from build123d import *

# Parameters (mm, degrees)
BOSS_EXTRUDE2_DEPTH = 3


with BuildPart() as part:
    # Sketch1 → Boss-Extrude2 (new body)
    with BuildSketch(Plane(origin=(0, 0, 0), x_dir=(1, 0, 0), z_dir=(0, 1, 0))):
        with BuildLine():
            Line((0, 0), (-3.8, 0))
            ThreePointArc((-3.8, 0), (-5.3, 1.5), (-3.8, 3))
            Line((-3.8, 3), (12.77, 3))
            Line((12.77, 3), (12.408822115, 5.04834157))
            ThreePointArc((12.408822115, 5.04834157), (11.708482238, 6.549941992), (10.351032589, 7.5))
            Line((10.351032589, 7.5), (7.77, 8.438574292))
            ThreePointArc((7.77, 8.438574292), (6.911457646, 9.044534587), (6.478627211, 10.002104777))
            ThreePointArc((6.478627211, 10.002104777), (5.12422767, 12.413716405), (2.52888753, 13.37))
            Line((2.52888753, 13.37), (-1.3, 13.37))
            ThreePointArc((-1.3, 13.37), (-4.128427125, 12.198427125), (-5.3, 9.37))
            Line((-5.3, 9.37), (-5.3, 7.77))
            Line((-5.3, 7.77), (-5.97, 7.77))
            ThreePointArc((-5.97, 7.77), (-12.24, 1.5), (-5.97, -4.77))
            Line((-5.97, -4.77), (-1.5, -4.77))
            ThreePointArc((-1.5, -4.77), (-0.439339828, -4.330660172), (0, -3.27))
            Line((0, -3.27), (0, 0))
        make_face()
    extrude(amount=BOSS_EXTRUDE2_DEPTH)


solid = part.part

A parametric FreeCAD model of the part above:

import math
import FreeCAD as App
import Part
import Sketcher

V = App.Vector
Q = App.Units.Quantity

doc = App.newDocument("Part")
body = doc.addObject("PartDesign::Body", "Body")

# Sketch on XZ plane
sketch1 = body.newObject("Sketcher::SketchObject", "Sketch")
sketch1.AttachmentSupport = (doc.getObject("XZ_Plane"), [""])
sketch1.MapMode = "FlatFace"
sketch1.addGeometry(Part.LineSegment(V(0, 0, 0), V(-3.8, 0, 0)), False)
sketch1.addGeometry(Part.ArcOfCircle(Part.Circle(V(-3.8, -1.5, 0), V(0, 0, 1), 1.5), math.radians(90), math.radians(270)), False)
sketch1.addGeometry(Part.LineSegment(V(-3.8, -3, 0), V(12.8, -3, 0)), False)
sketch1.addGeometry(Part.LineSegment(V(12.8, -3, 0), V(12.4, -5, 0)), False)
sketch1.addGeometry(Part.ArcOfCircle(Part.Circle(V(9.3, -4.5, 0), V(0, 0, 1), 3.2), math.radians(-70), math.radians(-10)), False)
sketch1.addGeometry(Part.LineSegment(V(10.4, -7.5, 0), V(7.8, -8.4, 0)), False)
sketch1.addGeometry(Part.ArcOfCircle(Part.Circle(V(8.5, -10.3, 0), V(0, 0, 1), 2), math.radians(110), math.radians(171)), False)
sketch1.addGeometry(Part.ArcOfCircle(Part.Circle(V(2.5, -9.4, 0), V(0, 0, 1), 4), math.radians(-90), math.radians(-9)), False)
sketch1.addGeometry(Part.LineSegment(V(2.5, -13.4, 0), V(-1.3, -13.4, 0)), False)
sketch1.addGeometry(Part.ArcOfCircle(Part.Circle(V(-1.3, -9.4, 0), V(0, 0, 1), 4), math.radians(180), math.radians(270)), False)
sketch1.addGeometry(Part.LineSegment(V(-5.3, -9.4, 0), V(-5.3, -7.8, 0)), False)
sketch1.addGeometry(Part.LineSegment(V(-5.3, -7.8, 0), V(-6, -7.8, 0)), False)
sketch1.addGeometry(Part.ArcOfCircle(Part.Circle(V(-6, -1.5, 0), V(0, 0, 1), 6.3), math.radians(90), math.radians(270)), False)
sketch1.addGeometry(Part.LineSegment(V(-6, 4.8, 0), V(-1.5, 4.8, 0)), False)
sketch1.addGeometry(Part.ArcOfCircle(Part.Circle(V(-1.5, 3.3, 0), V(0, 0, 1), 1.5), math.radians(0), math.radians(90)), False)
sketch1.addGeometry(Part.LineSegment(V(0, 3.3, 0), V(0, 0, 0)), False)
sketch1.addConstraint(Sketcher.Constraint("Tangent", 0, 2, 1, 1))
sketch1.addConstraint(Sketcher.Constraint("Tangent", 1, 2, 2, 1))
sketch1.addConstraint(Sketcher.Constraint("Coincident", 2, 2, 3, 1))
sketch1.addConstraint(Sketcher.Constraint("Tangent", 3, 2, 4, 2))
sketch1.addConstraint(Sketcher.Constraint("Tangent", 4, 1, 5, 1))
sketch1.addConstraint(Sketcher.Constraint("Tangent", 5, 2, 6, 1))
sketch1.addConstraint(Sketcher.Constraint("Tangent", 6, 2, 7, 2))
sketch1.addConstraint(Sketcher.Constraint("Tangent", 7, 1, 8, 1))
sketch1.addConstraint(Sketcher.Constraint("Tangent", 8, 2, 9, 2))
sketch1.addConstraint(Sketcher.Constraint("Tangent", 9, 1, 10, 1))
sketch1.addConstraint(Sketcher.Constraint("Coincident", 10, 2, 11, 1))
sketch1.addConstraint(Sketcher.Constraint("Tangent", 11, 2, 12, 2))
sketch1.addConstraint(Sketcher.Constraint("Tangent", 12, 1, 13, 1))
sketch1.addConstraint(Sketcher.Constraint("Tangent", 13, 2, 14, 2))
sketch1.addConstraint(Sketcher.Constraint("Tangent", 14, 1, 15, 1))
sketch1.addConstraint(Sketcher.Constraint("Coincident", 15, 2, 0, 1))
sketch1.addConstraint(Sketcher.Constraint("Horizontal", 0))
sketch1.addConstraint(Sketcher.Constraint("Horizontal", 2))
sketch1.addConstraint(Sketcher.Constraint("Horizontal", 8))
sketch1.addConstraint(Sketcher.Constraint("Vertical", 10))
sketch1.addConstraint(Sketcher.Constraint("Horizontal", 11))
sketch1.addConstraint(Sketcher.Constraint("Horizontal", 13))
sketch1.addConstraint(Sketcher.Constraint("Vertical", 15))
sketch1.addConstraint(Sketcher.Constraint("Coincident", 15, 2, -1, 1))
sketch1.addConstraint(Sketcher.Constraint("Equal", 7, 9))
sketch1.addConstraint(Sketcher.Constraint("Equal", 1, 14))
sketch1.addConstraint(Sketcher.Constraint("Horizontal", 1, 3, 12, 3))
sketch1.addConstraint(Sketcher.Constraint("Radius", 6, 2.0))
sketch1.addConstraint(Sketcher.Constraint("Radius", 7, 4.0))
sketch1.addConstraint(Sketcher.Constraint("Radius", 1, 1.5))
sketch1.addConstraint(Sketcher.Constraint("Radius", 4, 3.2))
sketch1.addConstraint(Sketcher.Constraint("Angle", 3, Q("-100 deg")))
sketch1.addConstraint(Sketcher.Constraint("Radius", 12, 6.27))
sketch1.addConstraint(Sketcher.Constraint("DistanceX", 0, 2, 0, 1, 3.8))
sketch1.addConstraint(Sketcher.Constraint("DistanceY", 10, 1, 10, 2, 1.6))
sketch1.addConstraint(Sketcher.Constraint("DistanceX", 2, 1, 2, 2, 16.57))
sketch1.addConstraint(Sketcher.Constraint("DistanceX", 11, 2, 11, 1, 0.67))
sketch1.addConstraint(Sketcher.Constraint("DistanceX", 13, 1, 13, 2, 4.47))
sketch1.addConstraint(Sketcher.Constraint("DistanceY", 4, 1, -1, 1, 7.5))
sketch1.addConstraint(Sketcher.Constraint("DistanceX", -1, 1, 5, 2, 7.77))
sketch1.addConstraint(Sketcher.Constraint("Distance", 3, 2.079941))
pad1 = body.newObject("PartDesign::Pad", "Pad")
pad1.Profile = sketch1
pad1.Length = 3
pad1.Reversed = True

doc.recompute()
